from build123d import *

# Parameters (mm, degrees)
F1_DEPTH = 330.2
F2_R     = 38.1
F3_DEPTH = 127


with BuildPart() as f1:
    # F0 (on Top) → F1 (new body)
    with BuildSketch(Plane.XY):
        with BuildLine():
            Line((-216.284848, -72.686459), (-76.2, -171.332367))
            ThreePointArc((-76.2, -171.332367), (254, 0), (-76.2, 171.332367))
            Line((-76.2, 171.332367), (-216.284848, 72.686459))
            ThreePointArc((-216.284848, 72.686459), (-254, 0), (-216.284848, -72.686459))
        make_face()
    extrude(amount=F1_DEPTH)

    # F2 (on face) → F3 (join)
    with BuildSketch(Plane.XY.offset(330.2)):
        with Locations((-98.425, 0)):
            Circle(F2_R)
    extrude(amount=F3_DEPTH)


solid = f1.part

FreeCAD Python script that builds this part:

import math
import FreeCAD as App
import Part
import Sketcher

V = App.Vector
Q = App.Units.Quantity

doc = App.newDocument("Part")
body = doc.addObject("PartDesign::Body", "Body")

sketch1 = body.newObject("Sketcher::SketchObject", "Sketch")
sketch1.AttachmentSupport = (doc.getObject("XY_Plane"), [""])
sketch1.MapMode = "FlatFace"
sketch1.addGeometry([
    Part.LineSegment(V(-216, -73, 0), V(-76, -171, 0)),
    Part.ArcOfCircle(Part.Circle(V(44, 0, 0), V(0, 0, 1), 210), math.radians(-125), math.radians(125)),
    Part.LineSegment(V(-76, 171, 0), V(-216, 73, 0)),
    Part.ArcOfCircle(Part.Circle(V(-165, 0, 0), V(0, 0, 1), 89), math.radians(125), math.radians(235)),
], False)
sketch1.addConstraint([
    Sketcher.Constraint("Tangent", 0, 2, 1, 1),
    Sketcher.Constraint("Tangent", 1, 2, 2, 1),
    Sketcher.Constraint("Tangent", 2, 2, 3, 1),
    Sketcher.Constraint("Tangent", 3, 2, 0, 1),
    Sketcher.Constraint("Symmetric", 0, 2, 1, 2, -1),
    Sketcher.Constraint("Radius", 3, Q("3.5 in")),
    Sketcher.Constraint("Radius", 1, Q("8.25 in")),
    Sketcher.Constraint("DistanceX", 0, 2, -1, 1, Q("3 in")),
    Sketcher.Constraint("DistanceX", 3, 3, -1, 1, Q("6.5 in")),
])
pad1 = body.newObject("PartDesign::Pad", "Pad")
pad1.Profile = sketch1
pad1.Length = Q("13 in")

sketch2 = body.newObject("Sketcher::SketchObject", "Sketch001")
sketch2.AttachmentSupport = (doc.getObject("XY_Plane"), [""])
sketch2.MapMode = "FlatFace"
sketch2.AttachmentOffset = App.Placement(V(0, 0, 13 * 25.4), App.Rotation())
sketch2.addGeometry(Part.Circle(V(-98, 0, 0), V(0, 0, 1), 38), False)
sketch2.addConstraint([
    Sketcher.Constraint("PointOnObject", 0, 3, -1),
    Sketcher.Constraint("Diameter", 0, Q("3 in")),
    Sketcher.Constraint("DistanceX", 0, 3, -1, 1, Q("3.875 in")),
])
pad2 = body.newObject("PartDesign::Pad", "Pad001")
pad2.Profile = sketch2
pad2.Length = Q("5 in")

doc.recompute()
